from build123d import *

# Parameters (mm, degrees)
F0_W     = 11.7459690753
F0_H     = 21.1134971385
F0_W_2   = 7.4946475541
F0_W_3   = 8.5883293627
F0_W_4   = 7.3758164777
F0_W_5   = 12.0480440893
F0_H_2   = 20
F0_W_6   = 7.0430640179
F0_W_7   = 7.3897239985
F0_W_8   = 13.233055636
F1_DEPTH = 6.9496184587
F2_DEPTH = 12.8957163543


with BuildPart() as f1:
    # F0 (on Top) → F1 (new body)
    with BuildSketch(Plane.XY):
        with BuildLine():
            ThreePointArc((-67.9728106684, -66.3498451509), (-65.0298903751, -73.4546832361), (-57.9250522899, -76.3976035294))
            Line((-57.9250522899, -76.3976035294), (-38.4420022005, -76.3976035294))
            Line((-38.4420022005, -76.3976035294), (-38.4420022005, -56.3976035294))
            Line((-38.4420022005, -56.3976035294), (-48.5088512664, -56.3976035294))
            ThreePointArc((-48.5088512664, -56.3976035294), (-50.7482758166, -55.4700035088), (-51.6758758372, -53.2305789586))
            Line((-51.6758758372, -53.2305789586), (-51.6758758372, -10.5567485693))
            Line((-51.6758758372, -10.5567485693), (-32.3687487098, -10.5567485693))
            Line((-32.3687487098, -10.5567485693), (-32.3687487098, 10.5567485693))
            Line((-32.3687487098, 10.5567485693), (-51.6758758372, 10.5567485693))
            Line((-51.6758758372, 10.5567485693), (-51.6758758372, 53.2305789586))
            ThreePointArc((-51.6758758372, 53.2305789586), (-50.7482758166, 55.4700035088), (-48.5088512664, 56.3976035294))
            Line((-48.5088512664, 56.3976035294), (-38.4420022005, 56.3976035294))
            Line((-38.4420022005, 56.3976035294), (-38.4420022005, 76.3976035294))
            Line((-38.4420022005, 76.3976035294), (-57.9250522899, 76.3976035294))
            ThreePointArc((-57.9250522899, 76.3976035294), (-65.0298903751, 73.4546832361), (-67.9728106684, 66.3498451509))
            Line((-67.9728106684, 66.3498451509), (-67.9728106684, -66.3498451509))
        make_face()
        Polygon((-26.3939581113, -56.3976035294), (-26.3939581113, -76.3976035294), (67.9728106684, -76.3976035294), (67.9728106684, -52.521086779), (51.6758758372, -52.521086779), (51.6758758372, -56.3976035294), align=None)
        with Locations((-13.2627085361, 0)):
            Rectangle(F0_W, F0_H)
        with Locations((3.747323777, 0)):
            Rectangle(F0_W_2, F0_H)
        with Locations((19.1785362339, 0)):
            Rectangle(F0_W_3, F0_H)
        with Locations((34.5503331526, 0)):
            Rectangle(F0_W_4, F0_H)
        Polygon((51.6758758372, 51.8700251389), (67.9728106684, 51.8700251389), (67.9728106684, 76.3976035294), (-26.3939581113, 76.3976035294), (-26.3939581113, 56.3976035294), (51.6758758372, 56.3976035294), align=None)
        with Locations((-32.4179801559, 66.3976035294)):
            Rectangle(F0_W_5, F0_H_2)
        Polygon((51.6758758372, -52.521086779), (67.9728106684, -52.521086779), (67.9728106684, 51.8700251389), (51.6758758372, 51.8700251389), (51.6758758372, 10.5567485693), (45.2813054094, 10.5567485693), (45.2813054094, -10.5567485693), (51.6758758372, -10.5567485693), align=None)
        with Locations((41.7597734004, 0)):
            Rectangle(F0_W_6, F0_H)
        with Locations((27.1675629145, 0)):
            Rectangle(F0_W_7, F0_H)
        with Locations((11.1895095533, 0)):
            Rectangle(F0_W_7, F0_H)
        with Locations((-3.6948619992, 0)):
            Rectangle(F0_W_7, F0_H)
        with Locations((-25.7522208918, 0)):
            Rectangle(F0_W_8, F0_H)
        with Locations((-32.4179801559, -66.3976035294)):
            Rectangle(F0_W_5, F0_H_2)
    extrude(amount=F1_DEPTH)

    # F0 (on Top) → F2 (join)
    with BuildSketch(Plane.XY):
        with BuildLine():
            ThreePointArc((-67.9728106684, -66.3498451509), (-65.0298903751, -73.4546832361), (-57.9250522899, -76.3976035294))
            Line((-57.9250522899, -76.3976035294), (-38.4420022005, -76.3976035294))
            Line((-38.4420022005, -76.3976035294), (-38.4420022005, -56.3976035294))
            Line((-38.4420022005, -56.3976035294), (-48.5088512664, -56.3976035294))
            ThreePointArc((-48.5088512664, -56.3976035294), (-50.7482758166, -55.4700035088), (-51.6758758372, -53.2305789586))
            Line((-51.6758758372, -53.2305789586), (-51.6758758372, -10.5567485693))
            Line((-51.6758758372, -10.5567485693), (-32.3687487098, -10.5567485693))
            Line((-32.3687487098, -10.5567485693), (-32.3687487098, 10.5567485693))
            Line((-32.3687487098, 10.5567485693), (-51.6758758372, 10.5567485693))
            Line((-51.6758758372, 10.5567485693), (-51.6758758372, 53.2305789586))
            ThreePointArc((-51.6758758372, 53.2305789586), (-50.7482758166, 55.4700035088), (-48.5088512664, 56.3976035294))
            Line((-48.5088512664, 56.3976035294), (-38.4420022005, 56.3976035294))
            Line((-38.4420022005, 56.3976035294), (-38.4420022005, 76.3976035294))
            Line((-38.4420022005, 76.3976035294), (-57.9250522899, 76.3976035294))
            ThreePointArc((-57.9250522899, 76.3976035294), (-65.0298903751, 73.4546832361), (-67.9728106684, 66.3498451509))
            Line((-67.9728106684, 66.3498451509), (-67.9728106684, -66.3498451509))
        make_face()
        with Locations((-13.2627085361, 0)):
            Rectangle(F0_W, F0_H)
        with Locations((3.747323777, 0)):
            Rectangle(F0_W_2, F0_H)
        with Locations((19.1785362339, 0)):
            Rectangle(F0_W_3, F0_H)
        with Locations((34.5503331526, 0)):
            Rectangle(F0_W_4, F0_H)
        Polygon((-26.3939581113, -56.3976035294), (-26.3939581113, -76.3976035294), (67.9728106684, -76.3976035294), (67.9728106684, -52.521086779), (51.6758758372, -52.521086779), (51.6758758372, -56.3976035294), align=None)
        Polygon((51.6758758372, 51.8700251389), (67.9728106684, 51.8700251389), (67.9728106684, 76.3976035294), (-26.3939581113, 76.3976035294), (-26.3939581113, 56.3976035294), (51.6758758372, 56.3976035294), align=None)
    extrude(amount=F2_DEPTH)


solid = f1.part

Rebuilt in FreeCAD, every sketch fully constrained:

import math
import FreeCAD as App
import Part
import Sketcher
from FreeCAD import Vector


def add_polygon(sketch, points):
    """Adds a closed chain of lines whose ends are joined by coincident constraints."""
    first, n = sketch.GeometryCount, len(points)
    for a, b in zip(points, points[1:] + points[:1]):
        sketch.addGeometry(Part.LineSegment(App.Vector(*a, 0), App.Vector(*b, 0)), False)
    for i in range(n):
        sketch.addConstraint(Sketcher.Constraint("Coincident", first + i, 2, first + (i + 1) % n, 1))

doc = App.newDocument("Part")
body = doc.addObject("PartDesign::Body", "Body")

# Sketch on XY plane
sketch1 = body.newObject("Sketcher::SketchObject", "Sketch")
sketch1.AttachmentSupport = (doc.getObject("XY_Plane"), [""])
sketch1.MapMode = "FlatFace"
sketch1.addGeometry([
    Part.ArcOfCircle(Part.Circle(Vector(-57.9, -66.3, 0), Vector(0, 0, 1), 10), math.radians(180), math.radians(270)),  # 0
    Part.LineSegment(Vector(-57.9, -76.4, 0), Vector(68, -76.4, 0)),  # 1
    Part.LineSegment(Vector(68, -76.4, 0), Vector(68, 76.4, 0)),  # 2
    Part.LineSegment(Vector(68, 76.4, 0), Vector(-57.9, 76.4, 0)),  # 3
    Part.ArcOfCircle(Part.Circle(Vector(-57.9, 66.3, 0), Vector(0, 0, 1), 10), math.radians(90), math.radians(180)),  # 4
    Part.LineSegment(Vector(-68, 66.3, 0), Vector(-68, -66.3, 0)),  # 5
    Part.ArcOfCircle(Part.Circle(Vector(-48.5, -53.2, 0), Vector(0, 0, 1), 3.2), math.radians(180), math.radians(270)),  # 6
    Part.LineSegment(Vector(-51.7, -53.2, 0), Vector(-51.7, -10.6, 0)),  # 7
    Part.LineSegment(Vector(-51.7, -10.6, 0), Vector(30.9, -10.6, 0)),  # 8
    Part.LineSegment(Vector(30.9, -10.6, 0), Vector(45.3, -10.6, 0)),  # 9
    Part.LineSegment(Vector(45.3, -10.6, 0), Vector(51.7, -10.6, 0)),  # 10
    Part.LineSegment(Vector(51.7, -10.6, 0), Vector(51.7, -56.4, 0)),  # 11
    Part.LineSegment(Vector(51.7, -56.4, 0), Vector(-48.5, -56.4, 0)),  # 12
    Part.LineSegment(Vector(-51.7, 10.6, 0), Vector(-51.7, 53.2, 0)),  # 13
    Part.ArcOfCircle(Part.Circle(Vector(-48.5, 53.2, 0), Vector(0, 0, 1), 3.2), math.radians(90), math.radians(180)),  # 14
    Part.LineSegment(Vector(-48.5, 56.4, 0), Vector(51.7, 56.4, 0)),  # 15
    Part.LineSegment(Vector(51.7, 56.4, 0), Vector(51.7, 10.6, 0)),  # 16
    Part.LineSegment(Vector(51.7, 10.6, 0), Vector(45.3, 10.6, 0)),  # 17
    Part.LineSegment(Vector(45.3, 10.6, 0), Vector(30.9, 10.6, 0)),  # 18
    Part.LineSegment(Vector(30.9, 10.6, 0), Vector(-51.7, 10.6, 0)),  # 19
], False)
sketch1.addConstraint([
    Sketcher.Constraint("Tangent", 0, 2, 1, 1),
    Sketcher.Constraint("Coincident", 1, 2, 2, 1),
    Sketcher.Constraint("Coincident", 2, 2, 3, 1),
    Sketcher.Constraint("Tangent", 3, 2, 4, 1),
    Sketcher.Constraint("Tangent", 4, 2, 5, 1),
    Sketcher.Constraint("Tangent", 5, 2, 0, 1),
    Sketcher.Constraint("Tangent", 6, 1, 7, 1),
    Sketcher.Constraint("Coincident", 7, 2, 8, 1),
    Sketcher.Constraint("Coincident", 8, 2, 9, 1),
    Sketcher.Constraint("Coincident", 9, 2, 10, 1),
    Sketcher.Constraint("Coincident", 10, 2, 11, 1),
    Sketcher.Constraint("Coincident", 11, 2, 12, 1),
    Sketcher.Constraint("Tangent", 12, 2, 6, 2),
    Sketcher.Constraint("Tangent", 13, 2, 14, 2),
    Sketcher.Constraint("Tangent", 14, 1, 15, 1),
    Sketcher.Constraint("Coincident", 15, 2, 16, 1),
    Sketcher.Constraint("Coincident", 16, 2, 17, 1),
    Sketcher.Constraint("Coincident", 17, 2, 18, 1),
    Sketcher.Constraint("Coincident", 18, 2, 19, 1),
    Sketcher.Constraint("Coincident", 19, 2, 13, 1),
    Sketcher.Constraint("Horizontal", 1),
    Sketcher.Constraint("Vertical", 2),
    Sketcher.Constraint("Horizontal", 3),
    Sketcher.Constraint("Vertical", 5),
    Sketcher.Constraint("Vertical", 7),
    Sketcher.Constraint("Horizontal", 8),
    Sketcher.Constraint("Horizontal", 9),
    Sketcher.Constraint("Horizontal", 10),
    Sketcher.Constraint("Vertical", 11),
    Sketcher.Constraint("Horizontal", 12),
    Sketcher.Constraint("Vertical", 13),
    Sketcher.Constraint("Horizontal", 15),
    Sketcher.Constraint("Vertical", 16),
    Sketcher.Constraint("Horizontal", 17),
    Sketcher.Constraint("Horizontal", 18),
    Sketcher.Constraint("Horizontal", 19),
    Sketcher.Constraint("Equal", 0, 4),
    Sketcher.Constraint("Equal", 6, 14),
    Sketcher.Constraint("Symmetric", 7, 2, 16, 2, -1, 1),
    Sketcher.Constraint("Symmetric", 6, 3, 14, 3, -1),
    Sketcher.Constraint("Vertical", 11, 2, 15, 2),
    Sketcher.Constraint("Vertical", 9, 2, 17, 2),
    Sketcher.Constraint("Vertical", 8, 2, 18, 2),
    Sketcher.Constraint("DistanceY", 1, 2, 11, 2, 20.0),
    Sketcher.Constraint("DistanceY", 14, 1, 3, 2, 20.0),
    Sketcher.Constraint("Radius", 0, 10.047758),
    Sketcher.Constraint("DistanceX", 8, 1, 8, 2, 82.538301),
    Sketcher.Constraint("Radius", 6, 3.167025),
    Sketcher.Constraint("DistanceX", 9, 1, 9, 2, 14.41888),
    Sketcher.Constraint("DistanceX", 10, 1, 10, 2, 6.39457),
    Sketcher.Constraint("DistanceY", 5, 2, 5, 1, 132.69969),
    Sketcher.Constraint("DistanceY", 7, 1, 7, 2, 42.67383),
    Sketcher.Constraint("DistanceX", 0, 3, 6, 3, 9.416201),
    Sketcher.Constraint("DistanceX", 1, 1, 1, 2, 125.897863),
])
pad1 = body.newObject("PartDesign::Pad", "Pad")
pad1.Profile = sketch1
pad1.Length = 6.949618

# Sketch on XY plane
sketch2 = body.newObject("Sketcher::SketchObject", "Sketch001")
sketch2.AttachmentSupport = (doc.getObject("XY_Plane"), [""])
sketch2.MapMode = "FlatFace"
sketch2.addGeometry(Part.ArcOfCircle(Part.Circle(Vector(-57.9, -66.3, 0), Vector(0, 0, 1), 10), math.radians(180), math.radians(270)), False)  # 0
sketch2.addGeometry(Part.LineSegment(Vector(-57.9, -76.4, 0), Vector(-38.4, -76.4, 0)), False)  # 1
sketch2.addGeometry(Part.LineSegment(Vector(-38.4, -76.4, 0), Vector(-38.4, -56.4, 0)), False)  # 2
sketch2.addGeometry(Part.LineSegment(Vector(-38.4, -56.4, 0), Vector(-48.5, -56.4, 0)), False)  # 3
sketch2.addGeometry(Part.ArcOfCircle(Part.Circle(Vector(-48.5, -53.2, 0), Vector(0, 0, 1), 3.2), math.radians(180), math.radians(270)), False)  # 4
sketch2.addGeometry(Part.LineSegment(Vector(-51.7, -53.2, 0), Vector(-51.7, -10.6, 0)), False)  # 5
sketch2.addGeometry(Part.LineSegment(Vector(-51.7, -10.6, 0), Vector(-32.4, -10.6, 0)), False)  # 6
sketch2.addGeometry(Part.LineSegment(Vector(-32.4, -10.6, 0), Vector(-32.4, 10.6, 0)), False)  # 7
sketch2.addGeometry(Part.LineSegment(Vector(-32.4, 10.6, 0), Vector(-51.7, 10.6, 0)), False)  # 8
sketch2.addGeometry(Part.LineSegment(Vector(-51.7, 10.6, 0), Vector(-51.7, 53.2, 0)), False)  # 9
sketch2.addGeometry(Part.ArcOfCircle(Part.Circle(Vector(-48.5, 53.2, 0), Vector(0, 0, 1), 3.2), math.radians(90), math.radians(180)), False)  # 10
sketch2.addGeometry(Part.LineSegment(Vector(-48.5, 56.4, 0), Vector(-38.4, 56.4, 0)), False)  # 11
sketch2.addGeometry(Part.LineSegment(Vector(-38.4, 56.4, 0), Vector(-38.4, 76.4, 0)), False)  # 12
sketch2.addGeometry(Part.LineSegment(Vector(-38.4, 76.4, 0), Vector(-57.9, 76.4, 0)), False)  # 13
sketch2.addGeometry(Part.ArcOfCircle(Part.Circle(Vector(-57.9, 66.3, 0), Vector(0, 0, 1), 10), math.radians(90), math.radians(180)), False)  # 14
sketch2.addGeometry(Part.LineSegment(Vector(-68, 66.3, 0), Vector(-68, -66.3, 0)), False)  # 15
add_polygon(sketch2, [(-19.1, 10.6), (-19.1, -10.6), (-7.4, -10.6), (-7.4, 10.6)])  # lines 16-19
add_polygon(sketch2, [(0, 10.6), (0, -10.6), (7.5, -10.6), (7.5, 10.6)])  # lines 20-23
add_polygon(sketch2, [(14.9, 10.6), (14.9, -10.6), (23.5, -10.6), (23.5, 10.6)])  # lines 24-27
add_polygon(sketch2, [(30.9, 10.6), (30.9, -10.6), (38.2, -10.6), (38.2, 10.6)])  # lines 28-31
add_polygon(sketch2, [(-26.4, -56.4), (-26.4, -76.4), (68, -76.4), (68, -52.5), (51.7, -52.5), (51.7, -56.4)])  # lines 32-37
add_polygon(sketch2, [(51.7, 51.9), (68, 51.9), (68, 76.4), (-26.4, 76.4), (-26.4, 56.4), (51.7, 56.4)])  # lines 38-43
sketch2.addConstraint([
    Sketcher.Constraint("Tangent", 0, 2, 1, 1),
    Sketcher.Constraint("Coincident", 1, 2, 2, 1),
    Sketcher.Constraint("Coincident", 2, 2, 3, 1),
    Sketcher.Constraint("Tangent", 3, 2, 4, 2),
    Sketcher.Constraint("Tangent", 4, 1, 5, 1),
    Sketcher.Constraint("Coincident", 5, 2, 6, 1),
    Sketcher.Constraint("Coincident", 6, 2, 7, 1),
    Sketcher.Constraint("Coincident", 7, 2, 8, 1),
    Sketcher.Constraint("Coincident", 8, 2, 9, 1),
    Sketcher.Constraint("Tangent", 9, 2, 10, 2),
    Sketcher.Constraint("Tangent", 10, 1, 11, 1),
    Sketcher.Constraint("Coincident", 11, 2, 12, 1),
    Sketcher.Constraint("Coincident", 12, 2, 13, 1),
    Sketcher.Constraint("Tangent", 13, 2, 14, 1),
    Sketcher.Constraint("Tangent", 14, 2, 15, 1),
    Sketcher.Constraint("Tangent", 15, 2, 0, 1),
    Sketcher.Constraint("Horizontal", 1),
    Sketcher.Constraint("Vertical", 2),
    Sketcher.Constraint("Horizontal", 3),
    Sketcher.Constraint("Vertical", 5),
    Sketcher.Constraint("Horizontal", 6),
    Sketcher.Constraint("Vertical", 7),
    Sketcher.Constraint("Horizontal", 8),
    Sketcher.Constraint("Vertical", 9),
    Sketcher.Constraint("Horizontal", 11),
    Sketcher.Constraint("Vertical", 12),
    Sketcher.Constraint("Horizontal", 13),
    Sketcher.Constraint("Vertical", 15),
    Sketcher.Constraint("Vertical", 16),
    Sketcher.Constraint("Horizontal", 17),
    Sketcher.Constraint("Vertical", 18),
    Sketcher.Constraint("Horizontal", 19),
    Sketcher.Constraint("Vertical", 20),
    Sketcher.Constraint("Horizontal", 21),
    Sketcher.Constraint("Vertical", 22),
    Sketcher.Constraint("Horizontal", 23),
    Sketcher.Constraint("Vertical", 24),
    Sketcher.Constraint("Horizontal", 25),
    Sketcher.Constraint("Vertical", 26),
    Sketcher.Constraint("Horizontal", 27),
    Sketcher.Constraint("Vertical", 28),
    Sketcher.Constraint("Horizontal", 29),
    Sketcher.Constraint("Vertical", 30),
    Sketcher.Constraint("Horizontal", 31),
    Sketcher.Constraint("Vertical", 32),
    Sketcher.Constraint("Horizontal", 33),
    Sketcher.Constraint("Vertical", 34),
    Sketcher.Constraint("Horizontal", 35),
    Sketcher.Constraint("Vertical", 36),
    Sketcher.Constraint("Horizontal", 37),
    Sketcher.Constraint("Horizontal", 38),
    Sketcher.Constraint("Vertical", 39),
    Sketcher.Constraint("Horizontal", 40),
    Sketcher.Constraint("Vertical", 41),
    Sketcher.Constraint("Horizontal", 42),
    Sketcher.Constraint("Vertical", 43),
    Sketcher.Constraint("Equal", 4, 10),
    Sketcher.Constraint("Equal", 0, 14),
    Sketcher.Constraint("Symmetric", 20, 2, 23, 2, -1, 1),
    Sketcher.Constraint("Symmetric", 4, 3, 10, 3, -1),
    Sketcher.Constraint("Symmetric", 1, 2, 12, 2, -1),
    Sketcher.Constraint("Symmetric", 33, 2, 39, 2, -1),
    Sketcher.Constraint("Symmetric", 37, 2, 41, 2, -1),
    Sketcher.Constraint("Horizontal", 6, 2, 16, 2),
    Sketcher.Constraint("Horizontal", 8, 2, 18, 2),
    Sketcher.Constraint("Horizontal", 17, 2, 20, 2),
    Sketcher.Constraint("Horizontal", 19, 2, 22, 2),
    Sketcher.Constraint("Horizontal", 21, 2, 24, 2),
    Sketcher.Constraint("Horizontal", 23, 2, 26, 2),
    Sketcher.Constraint("Horizontal", 25, 2, 28, 2),
    Sketcher.Constraint("Horizontal", 27, 2, 30, 2),
    Sketcher.Constraint("Horizontal", 1, 2, 32, 2),
    Sketcher.Constraint("Horizontal", 3, 2, 36, 2),
    Sketcher.Constraint("Vertical", 36, 2, 42, 2),
    Sketcher.Constraint("DistanceY", 2, 1, 2, 2, 20.0),
    Sketcher.Constraint("Radius", 0, 10.047758),
    Sketcher.Constraint("Radius", 4, 3.167025),
    Sketcher.Constraint("DistanceX", 1, 1, 1, 2, 19.48305),
    Sketcher.Constraint("DistanceX", 3, 2, 3, 1, 10.066849),
    Sketcher.Constraint("DistanceX", 17, 1, 17, 2, 11.745969),
    Sketcher.Constraint("DistanceX", 25, 1, 25, 2, 8.588329),
    Sketcher.Constraint("DistanceX", 33, 1, 33, 2, 94.366769),
    Sketcher.Constraint("DistanceY", 5, 1, 5, 2, 42.67383),
    Sketcher.Constraint("DistanceY", 15, 2, 15, 1, 132.69969),
    Sketcher.Constraint("DistanceY", 39, 1, 39, 2, 24.527578),
    Sketcher.Constraint("DistanceX", -1, 1, 25, 2, 23.472701),
    Sketcher.Constraint("DistanceX", 6, 1, 6, 2, 19.307127),
    Sketcher.Constraint("DistanceX", 21, 1, 21, 2, 7.494648),
    Sketcher.Constraint("DistanceX", 29, 1, 29, 2, 7.375816),
    Sketcher.Constraint("DistanceX", 35, 2, 35, 1, 16.296935),
    Sketcher.Constraint("DistanceY", 34, 1, 34, 2, 23.876517),
    Sketcher.Constraint("DistanceX", 4, 3, -1, 1, 48.508851),
    Sketcher.Constraint("DistanceX", -1, 1, 29, 2, 38.238241),
    Sketcher.Constraint("DistanceX", 32, 2, -1, 1, 26.393958),
    Sketcher.Constraint("DistanceX", 2, 2, 16, 2, 19.306309),
])
pad2 = body.newObject("PartDesign::Pad", "Pad001")
pad2.Profile = sketch2
pad2.Length = 12.895716

doc.recompute()
